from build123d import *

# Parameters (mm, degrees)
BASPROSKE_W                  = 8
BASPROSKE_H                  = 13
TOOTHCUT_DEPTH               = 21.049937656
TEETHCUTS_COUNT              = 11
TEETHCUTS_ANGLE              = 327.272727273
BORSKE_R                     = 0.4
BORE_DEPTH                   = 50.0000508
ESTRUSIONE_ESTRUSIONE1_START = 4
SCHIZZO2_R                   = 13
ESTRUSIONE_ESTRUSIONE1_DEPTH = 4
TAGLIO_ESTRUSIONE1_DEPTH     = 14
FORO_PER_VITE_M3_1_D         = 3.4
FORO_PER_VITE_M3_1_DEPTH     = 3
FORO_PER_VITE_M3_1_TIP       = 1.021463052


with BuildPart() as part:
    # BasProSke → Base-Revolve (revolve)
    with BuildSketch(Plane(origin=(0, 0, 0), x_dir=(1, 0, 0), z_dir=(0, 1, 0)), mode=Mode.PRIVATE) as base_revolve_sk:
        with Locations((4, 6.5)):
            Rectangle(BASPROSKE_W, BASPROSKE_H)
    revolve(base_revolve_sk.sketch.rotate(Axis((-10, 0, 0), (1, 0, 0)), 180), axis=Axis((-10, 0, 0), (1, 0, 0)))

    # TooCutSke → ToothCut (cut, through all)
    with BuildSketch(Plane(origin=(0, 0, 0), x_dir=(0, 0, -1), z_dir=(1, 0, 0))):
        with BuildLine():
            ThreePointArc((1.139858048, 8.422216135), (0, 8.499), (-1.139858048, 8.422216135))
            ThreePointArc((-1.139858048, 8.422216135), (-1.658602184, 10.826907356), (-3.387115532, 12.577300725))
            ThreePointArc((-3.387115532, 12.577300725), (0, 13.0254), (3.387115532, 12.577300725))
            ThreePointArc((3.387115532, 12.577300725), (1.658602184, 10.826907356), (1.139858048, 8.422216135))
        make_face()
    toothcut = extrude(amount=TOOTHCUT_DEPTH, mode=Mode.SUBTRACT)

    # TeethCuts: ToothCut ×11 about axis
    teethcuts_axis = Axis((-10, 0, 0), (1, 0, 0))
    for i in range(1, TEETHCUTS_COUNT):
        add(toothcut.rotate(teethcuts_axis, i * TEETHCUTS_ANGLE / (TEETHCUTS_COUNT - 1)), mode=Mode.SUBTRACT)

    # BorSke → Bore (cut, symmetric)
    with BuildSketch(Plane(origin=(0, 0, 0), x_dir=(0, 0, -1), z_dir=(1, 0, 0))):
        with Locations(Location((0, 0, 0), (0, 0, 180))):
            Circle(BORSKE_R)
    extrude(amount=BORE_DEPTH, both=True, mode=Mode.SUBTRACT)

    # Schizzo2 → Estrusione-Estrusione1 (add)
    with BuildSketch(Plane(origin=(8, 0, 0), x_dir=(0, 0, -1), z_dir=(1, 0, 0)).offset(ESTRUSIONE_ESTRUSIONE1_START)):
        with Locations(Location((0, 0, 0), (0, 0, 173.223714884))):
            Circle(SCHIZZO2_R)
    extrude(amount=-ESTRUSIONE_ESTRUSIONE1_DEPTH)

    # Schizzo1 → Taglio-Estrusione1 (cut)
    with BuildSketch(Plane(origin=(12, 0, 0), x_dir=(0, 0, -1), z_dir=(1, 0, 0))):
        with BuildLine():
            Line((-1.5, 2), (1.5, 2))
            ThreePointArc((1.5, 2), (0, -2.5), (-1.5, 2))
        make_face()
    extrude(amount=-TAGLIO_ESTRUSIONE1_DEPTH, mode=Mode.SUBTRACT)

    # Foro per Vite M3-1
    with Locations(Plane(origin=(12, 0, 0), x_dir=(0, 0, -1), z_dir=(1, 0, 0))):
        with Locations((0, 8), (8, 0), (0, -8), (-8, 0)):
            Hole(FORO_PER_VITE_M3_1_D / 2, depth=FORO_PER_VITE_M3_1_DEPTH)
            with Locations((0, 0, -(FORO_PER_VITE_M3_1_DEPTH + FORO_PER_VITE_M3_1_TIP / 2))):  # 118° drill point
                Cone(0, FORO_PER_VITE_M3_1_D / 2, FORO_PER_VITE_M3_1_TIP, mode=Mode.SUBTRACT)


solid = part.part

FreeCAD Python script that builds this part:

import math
import FreeCAD as App
import Part
import Sketcher
Q = App.Units.Quantity

doc = App.newDocument("Part")
body = doc.addObject("PartDesign::Body", "Body")

sketch1 = body.newObject("Sketcher::SketchObject", "Sketch")
sketch1.AttachmentSupport = (doc.getObject("XZ_Plane"), [""])
sketch1.MapMode = "FlatFace"
sketch1.addGeometry([
    Part.LineSegment(App.Vector(0, -13, 0), App.Vector(0, 0, 0)),
    Part.LineSegment(App.Vector(0, 0, 0), App.Vector(8, 0, 0)),
    Part.LineSegment(App.Vector(8, 0, 0), App.Vector(8, -13, 0)),
    Part.LineSegment(App.Vector(8, -13, 0), App.Vector(0, -13, 0)),
], False)
sketch1.addConstraint([
    Sketcher.Constraint("Coincident", 0, 2, 1, 1),
    Sketcher.Constraint("Coincident", 1, 2, 2, 1),
    Sketcher.Constraint("Coincident", 2, 2, 3, 1),
    Sketcher.Constraint("Coincident", 3, 2, 0, 1),
    Sketcher.Constraint("Vertical", 0),
    Sketcher.Constraint("Horizontal", 1),
    Sketcher.Constraint("Vertical", 2),
    Sketcher.Constraint("Horizontal", 3),
    Sketcher.Constraint("Coincident", 0, 2, -1, 1),
    Sketcher.Constraint("DistanceX", 1, 1, 1, 2, Q("8 mm")),
    Sketcher.Constraint("DistanceY", 0, 1, 0, 2, Q("13 mm")),
])
revolution = body.newObject("PartDesign::Revolution", "Revolution")
revolution.Profile = sketch1
revolution.ReferenceAxis = (sketch1, ["H_Axis"])
revolution.Angle = 360

sketch2 = body.newObject("Sketcher::SketchObject", "Sketch001")
sketch2.AttachmentSupport = (doc.getObject("YZ_Plane"), [""])
sketch2.MapMode = "FlatFace"
sketch2.addGeometry([
    Part.ArcOfCircle(Part.Circle(App.Vector(0, 0, 0), App.Vector(0, 0, 1), 8.5), math.radians(-7.71), math.radians(7.71)),
    Part.ArcOfCircle(Part.Circle(App.Vector(8.7, -5.5, 0), App.Vector(0, 0, 1), 4.4), math.radians(29), math.radians(94)),
    Part.ArcOfCircle(Part.Circle(App.Vector(0, 0, 0), App.Vector(0, 0, 1), 13), math.radians(-15), math.radians(15)),
    Part.ArcOfCircle(Part.Circle(App.Vector(8.7, 5.5, 0), App.Vector(0, 0, 1), 4.4), math.radians(-94), math.radians(-29)),
], False)
sketch2.addConstraint([
    Sketcher.Constraint("Coincident", 0, 1, 1, 2),
    Sketcher.Constraint("Coincident", 1, 1, 2, 1),
    Sketcher.Constraint("Coincident", 2, 2, 3, 2),
    Sketcher.Constraint("Coincident", 3, 1, 0, 2),
    Sketcher.Constraint("Coincident", 0, 3, -1, 1),
    Sketcher.Constraint("Coincident", 2, 3, -1, 1),
    Sketcher.Constraint("Equal", 1, 3),
    Sketcher.Constraint("Symmetric", 1, 3, 3, 3, -1),
    Sketcher.Constraint("Radius", 1, Q("4.4 mm")),
    Sketcher.Constraint("Radius", 0, Q("8.499 mm")),
    Sketcher.Constraint("Radius", 2, Q("13.0254 mm")),
    Sketcher.Constraint("DistanceX", -1, 1, 1, 1, Q("12.577301 mm")),
    Sketcher.Constraint("DistanceY", 2, 2, 3, 3, Q("2.141702 mm")),
])
pocket1 = body.newObject("PartDesign::Pocket", "Pocket")
pocket1.Profile = sketch2
pocket1.Type = "ThroughAll"
pocket1.Reversed = True
doc.recompute()

polarpattern = body.newObject("PartDesign::PolarPattern", "PolarPattern")
polarpattern.Originals = [pocket1]
polarpattern.Axis = (doc.getObject("X_Axis"), [""])
polarpattern.Angle = 360
polarpattern.Occurrences = 11
body.Tip = polarpattern

sketch3 = body.newObject("Sketcher::SketchObject", "Sketch002")
sketch3.AttachmentSupport = (doc.getObject("YZ_Plane"), [""])
sketch3.MapMode = "FlatFace"
sketch3.addGeometry(Part.Circle(App.Vector(0, 0, 0), App.Vector(0, 0, 1), 0.4), False)
sketch3.addConstraint([
    Sketcher.Constraint("Coincident", 0, 3, -1, 1),
    Sketcher.Constraint("Diameter", 0, Q("0.8 mm")),
])
pocket2 = body.newObject("PartDesign::Pocket", "Pocket001")
pocket2.Profile = sketch3
pocket2.Length = 100.000102
pocket2.Midplane = True

sketch4 = body.newObject("Sketcher::SketchObject", "Sketch003")
sketch4.AttachmentSupport = (doc.getObject("YZ_Plane"), [""])
sketch4.MapMode = "FlatFace"
sketch4.AttachmentOffset = App.Placement(App.Vector(0, 0, 12), App.Rotation())
sketch4.addGeometry(Part.Circle(App.Vector(0, 0, 0), App.Vector(0, 0, 1), 13), False)
sketch4.addConstraint([
    Sketcher.Constraint("Coincident", 0, 3, -1, 1),
    Sketcher.Constraint("Diameter", 0, Q("26 mm")),
])
pad1 = body.newObject("PartDesign::Pad", "Pad")
pad1.Profile = sketch4
pad1.Length = 4
pad1.Reversed = True

sketch5 = body.newObject("Sketcher::SketchObject", "Sketch004")
sketch5.AttachmentSupport = (doc.getObject("YZ_Plane"), [""])
sketch5.MapMode = "FlatFace"
sketch5.AttachmentOffset = App.Placement(App.Vector(0, 0, 12), App.Rotation())
sketch5.addGeometry([
    Part.LineSegment(App.Vector(2, -1.5, 0), App.Vector(2, 1.5, 0)),
    Part.ArcOfCircle(Part.Circle(App.Vector(0, 0, 0), App.Vector(0, 0, 1), 2.5), math.radians(37), math.radians(323)),
], False)
sketch5.addConstraint([
    Sketcher.Constraint("Coincident", 0, 1, 1, 2),
    Sketcher.Constraint("Coincident", 1, 1, 0, 2),
    Sketcher.Constraint("Vertical", 0),
    Sketcher.Constraint("Coincident", 1, 3, -1, 1),
    Sketcher.Constraint("Radius", 1, Q("2.5 mm")),
    Sketcher.Constraint("DistanceY", 0, 1, 0, 2, Q("3 mm")),
])
pocket3 = body.newObject("PartDesign::Pocket", "Pocket002")
pocket3.Profile = sketch5
pocket3.Length = 14

sketch6 = body.newObject("Sketcher::SketchObject", "Sketch005")
sketch6.AttachmentSupport = (doc.getObject("YZ_Plane"), [""])
sketch6.MapMode = "FlatFace"
sketch6.AttachmentOffset = App.Placement(App.Vector(0, 0, 12), App.Rotation())
sketch6.addGeometry([
    Part.Circle(App.Vector(8, 0, 0), App.Vector(0, 0, 1), 1.7),
    Part.Circle(App.Vector(0, -8, 0), App.Vector(0, 0, 1), 1.7),
    Part.Circle(App.Vector(-8, 0, 0), App.Vector(0, 0, 1), 1.7),
    Part.Circle(App.Vector(0, 8, 0), App.Vector(0, 0, 1), 1.7),
], False)
sketch6.addConstraint([
    Sketcher.Constraint("Equal", 0, 1),
    Sketcher.Constraint("Equal", 1, 2),
    Sketcher.Constraint("Equal", 2, 3),
    Sketcher.Constraint("Symmetric", 0, 3, 2, 3, -1, 1),
    Sketcher.Constraint("Symmetric", 1, 3, 3, 3, -1, 1),
    Sketcher.Constraint("PointOnObject", 0, 3, -1),
    Sketcher.Constraint("PointOnObject", 1, 3, -2),
    Sketcher.Constraint("Diameter", 0, Q("3.4 mm")),
    Sketcher.Constraint("DistanceX", -1, 1, 0, 3, Q("8 mm")),
    Sketcher.Constraint("DistanceY", 1, 3, -1, 1, Q("8 mm")),
])
doc.recompute()
hole = body.newObject("PartDesign::Hole", "Hole")
hole.Profile = sketch6
hole.ThreadType = "None"
hole.Diameter = 3.4
hole.DepthType = "Dimension"
hole.Depth = 3
hole.DrillPoint = "Angled"
hole.DrillPointAngle = 118

doc.recompute()
